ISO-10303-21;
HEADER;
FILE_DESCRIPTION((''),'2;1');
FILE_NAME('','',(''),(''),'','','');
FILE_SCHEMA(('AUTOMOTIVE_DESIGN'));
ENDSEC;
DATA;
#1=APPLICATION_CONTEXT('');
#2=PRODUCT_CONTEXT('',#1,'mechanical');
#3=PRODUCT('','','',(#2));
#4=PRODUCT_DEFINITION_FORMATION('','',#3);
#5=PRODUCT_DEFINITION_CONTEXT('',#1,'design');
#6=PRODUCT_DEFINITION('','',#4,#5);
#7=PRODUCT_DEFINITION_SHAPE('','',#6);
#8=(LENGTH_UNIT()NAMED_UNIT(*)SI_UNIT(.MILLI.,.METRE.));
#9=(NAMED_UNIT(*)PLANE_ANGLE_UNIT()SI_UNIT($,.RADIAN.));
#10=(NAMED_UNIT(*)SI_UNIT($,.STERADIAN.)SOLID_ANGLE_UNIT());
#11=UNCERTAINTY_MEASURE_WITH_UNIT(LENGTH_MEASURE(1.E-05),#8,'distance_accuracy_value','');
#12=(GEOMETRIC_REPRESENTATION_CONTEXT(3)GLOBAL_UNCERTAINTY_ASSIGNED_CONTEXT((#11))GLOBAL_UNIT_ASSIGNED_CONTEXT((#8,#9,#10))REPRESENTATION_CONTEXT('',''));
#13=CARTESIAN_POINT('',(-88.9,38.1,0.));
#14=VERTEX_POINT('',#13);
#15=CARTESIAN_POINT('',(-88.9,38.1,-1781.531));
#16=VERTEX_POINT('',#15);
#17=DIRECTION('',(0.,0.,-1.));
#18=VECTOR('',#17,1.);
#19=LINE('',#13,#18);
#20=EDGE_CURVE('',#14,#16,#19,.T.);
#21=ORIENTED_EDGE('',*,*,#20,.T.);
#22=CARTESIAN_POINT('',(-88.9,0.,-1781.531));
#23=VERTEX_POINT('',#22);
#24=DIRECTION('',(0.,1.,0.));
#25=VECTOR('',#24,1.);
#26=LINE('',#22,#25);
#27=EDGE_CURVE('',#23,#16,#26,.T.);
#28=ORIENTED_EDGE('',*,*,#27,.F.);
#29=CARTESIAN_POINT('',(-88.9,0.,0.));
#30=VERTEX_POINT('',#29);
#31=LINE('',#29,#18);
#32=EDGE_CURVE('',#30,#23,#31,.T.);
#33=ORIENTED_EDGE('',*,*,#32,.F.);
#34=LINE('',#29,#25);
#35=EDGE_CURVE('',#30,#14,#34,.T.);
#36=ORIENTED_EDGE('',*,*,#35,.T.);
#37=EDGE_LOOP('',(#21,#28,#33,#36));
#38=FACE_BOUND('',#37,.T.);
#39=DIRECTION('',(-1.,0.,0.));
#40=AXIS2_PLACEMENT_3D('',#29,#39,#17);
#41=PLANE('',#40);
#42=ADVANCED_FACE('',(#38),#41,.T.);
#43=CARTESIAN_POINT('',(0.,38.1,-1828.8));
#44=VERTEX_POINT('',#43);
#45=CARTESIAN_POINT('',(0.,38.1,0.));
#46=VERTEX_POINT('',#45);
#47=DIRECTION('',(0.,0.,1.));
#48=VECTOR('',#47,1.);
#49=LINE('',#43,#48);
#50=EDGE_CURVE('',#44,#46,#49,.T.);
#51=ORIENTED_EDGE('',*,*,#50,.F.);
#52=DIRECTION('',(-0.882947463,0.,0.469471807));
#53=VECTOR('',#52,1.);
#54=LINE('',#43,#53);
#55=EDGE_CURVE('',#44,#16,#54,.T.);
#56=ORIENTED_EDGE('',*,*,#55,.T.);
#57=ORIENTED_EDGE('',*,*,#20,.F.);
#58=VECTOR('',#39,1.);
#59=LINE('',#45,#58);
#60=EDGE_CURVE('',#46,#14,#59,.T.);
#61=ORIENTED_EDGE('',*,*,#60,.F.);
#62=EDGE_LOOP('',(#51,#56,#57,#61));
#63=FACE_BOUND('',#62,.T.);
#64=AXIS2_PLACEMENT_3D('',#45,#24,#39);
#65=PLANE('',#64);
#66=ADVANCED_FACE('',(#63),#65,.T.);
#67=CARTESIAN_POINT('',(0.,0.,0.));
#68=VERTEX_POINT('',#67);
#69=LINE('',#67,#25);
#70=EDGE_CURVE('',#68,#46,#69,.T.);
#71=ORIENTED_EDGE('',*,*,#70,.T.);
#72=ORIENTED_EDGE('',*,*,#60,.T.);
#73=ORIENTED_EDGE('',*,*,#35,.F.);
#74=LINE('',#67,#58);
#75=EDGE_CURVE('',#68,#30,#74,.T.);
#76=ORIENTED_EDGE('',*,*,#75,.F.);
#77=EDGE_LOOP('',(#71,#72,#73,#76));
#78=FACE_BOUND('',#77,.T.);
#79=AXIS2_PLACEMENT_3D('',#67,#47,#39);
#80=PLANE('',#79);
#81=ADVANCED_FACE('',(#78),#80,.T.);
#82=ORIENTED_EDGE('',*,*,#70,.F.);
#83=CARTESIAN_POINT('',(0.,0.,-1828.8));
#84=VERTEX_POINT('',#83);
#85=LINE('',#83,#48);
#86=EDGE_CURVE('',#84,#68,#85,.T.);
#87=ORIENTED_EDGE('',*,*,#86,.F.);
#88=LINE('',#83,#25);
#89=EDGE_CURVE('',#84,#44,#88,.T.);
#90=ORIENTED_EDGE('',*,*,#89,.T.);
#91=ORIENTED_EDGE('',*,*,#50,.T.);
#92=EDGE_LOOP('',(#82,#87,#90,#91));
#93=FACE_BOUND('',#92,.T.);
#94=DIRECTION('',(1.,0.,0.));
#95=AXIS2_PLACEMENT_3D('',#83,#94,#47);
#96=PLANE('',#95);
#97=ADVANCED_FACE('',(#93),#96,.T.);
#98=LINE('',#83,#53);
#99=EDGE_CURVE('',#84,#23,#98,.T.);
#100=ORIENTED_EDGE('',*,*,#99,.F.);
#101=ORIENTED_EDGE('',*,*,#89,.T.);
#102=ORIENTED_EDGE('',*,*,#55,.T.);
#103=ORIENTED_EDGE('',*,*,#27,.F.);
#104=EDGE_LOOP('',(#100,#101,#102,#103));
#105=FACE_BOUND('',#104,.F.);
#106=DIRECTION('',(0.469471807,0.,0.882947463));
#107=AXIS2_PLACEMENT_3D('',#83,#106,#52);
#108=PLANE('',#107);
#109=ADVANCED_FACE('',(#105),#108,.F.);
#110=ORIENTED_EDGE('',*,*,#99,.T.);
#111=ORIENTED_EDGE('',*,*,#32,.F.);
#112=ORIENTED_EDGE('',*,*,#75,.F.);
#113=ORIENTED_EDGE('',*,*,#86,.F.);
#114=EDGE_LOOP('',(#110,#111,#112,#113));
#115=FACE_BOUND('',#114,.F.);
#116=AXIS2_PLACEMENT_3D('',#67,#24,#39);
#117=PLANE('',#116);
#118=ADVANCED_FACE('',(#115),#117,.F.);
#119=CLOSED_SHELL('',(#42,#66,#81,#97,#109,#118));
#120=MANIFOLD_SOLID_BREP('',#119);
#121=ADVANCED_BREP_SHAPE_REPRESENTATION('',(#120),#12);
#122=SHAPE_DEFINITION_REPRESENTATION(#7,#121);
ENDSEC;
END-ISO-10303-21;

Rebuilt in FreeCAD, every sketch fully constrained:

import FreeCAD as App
import Part
import Sketcher

V = App.Vector
Q = App.Units.Quantity

doc = App.newDocument("Part")
params = doc.addObject("Spreadsheet::Sheet", "Params")
for row, (alias, value) in enumerate([
    ("sketch1_height", "72 in"),
    ("sketch1_width", "3.5 in"),
    ("pad1_length", "1.5 in"),
], start=1):
    params.set(f"A{row}", alias)
    params.set(f"B{row}", "=" + value)
    params.setAlias(f"B{row}", alias)

body = doc.addObject("PartDesign::Body", "Body")

# Sketch on XZ plane
sketch1 = body.newObject("Sketcher::SketchObject", "Sketch")
sketch1.AttachmentSupport = (doc.getObject("XZ_Plane"), [""])
sketch1.MapMode = "FlatFace"
sketch1.addGeometry(Part.LineSegment(V(-89, 0, 0), V(0, 0, 0)), False)
sketch1.addGeometry(Part.LineSegment(V(0, 0, 0), V(0, -1829, 0)), False)
sketch1.addGeometry(Part.LineSegment(V(0, -1829, 0), V(-89, -1782, 0)), False)
sketch1.addGeometry(Part.LineSegment(V(-89, -1782, 0), V(-89, 0, 0)), False)
sketch1.addConstraint(Sketcher.Constraint("Coincident", 0, 2, 1, 1))
sketch1.addConstraint(Sketcher.Constraint("Coincident", 1, 2, 2, 1))
sketch1.addConstraint(Sketcher.Constraint("Coincident", 2, 2, 3, 1))
sketch1.addConstraint(Sketcher.Constraint("Coincident", 3, 2, 0, 1))
sketch1.addConstraint(Sketcher.Constraint("Horizontal", 0))
sketch1.addConstraint(Sketcher.Constraint("Vertical", 1))
sketch1.addConstraint(Sketcher.Constraint("Vertical", 3))
sketch1.addConstraint(Sketcher.Constraint("Coincident", 0, 2, -1, 1))
sketch1.addConstraint(Sketcher.Constraint("DistanceY", 1, 2, 1, 1, Q("72 in")))
sketch1.addConstraint(Sketcher.Constraint("DistanceX", 0, 1, 0, 2, Q("3.5 in")))
sketch1.addConstraint(Sketcher.Constraint("Angle", 2, Q("152 deg")))
sketch1.setExpression("Constraints[8]", "Params.sketch1_height")
sketch1.setExpression("Constraints[9]", "Params.sketch1_width")
pad1 = body.newObject("PartDesign::Pad", "Pad")
pad1.Profile = sketch1
pad1.setExpression("Length", "Params.pad1_length")
pad1.Reversed = True

doc.recompute()
